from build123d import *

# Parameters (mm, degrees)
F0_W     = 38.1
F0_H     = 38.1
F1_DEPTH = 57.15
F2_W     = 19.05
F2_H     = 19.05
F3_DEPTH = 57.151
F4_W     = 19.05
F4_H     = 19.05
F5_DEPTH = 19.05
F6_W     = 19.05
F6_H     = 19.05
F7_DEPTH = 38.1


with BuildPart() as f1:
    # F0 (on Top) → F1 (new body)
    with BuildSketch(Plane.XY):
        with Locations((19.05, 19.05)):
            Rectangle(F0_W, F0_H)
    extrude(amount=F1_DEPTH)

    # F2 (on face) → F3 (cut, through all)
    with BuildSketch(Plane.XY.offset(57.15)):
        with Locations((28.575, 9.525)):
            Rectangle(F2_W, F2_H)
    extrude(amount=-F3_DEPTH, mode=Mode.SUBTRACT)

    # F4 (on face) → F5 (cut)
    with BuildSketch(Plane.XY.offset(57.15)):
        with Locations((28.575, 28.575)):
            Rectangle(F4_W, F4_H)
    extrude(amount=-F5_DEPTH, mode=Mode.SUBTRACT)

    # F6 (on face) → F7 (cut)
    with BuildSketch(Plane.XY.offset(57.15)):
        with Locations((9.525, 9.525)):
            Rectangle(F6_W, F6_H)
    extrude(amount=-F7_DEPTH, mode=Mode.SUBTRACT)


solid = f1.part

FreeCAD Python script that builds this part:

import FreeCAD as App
import Part
import Sketcher

V = App.Vector
Q = App.Units.Quantity


def add_polygon(sketch, points):
    """Adds a closed chain of lines whose ends are joined by coincident constraints."""
    first, n = sketch.GeometryCount, len(points)
    for a, b in zip(points, points[1:] + points[:1]):
        sketch.addGeometry(Part.LineSegment(App.Vector(*a, 0), App.Vector(*b, 0)), False)
    for i in range(n):
        sketch.addConstraint(Sketcher.Constraint("Coincident", first + i, 2, first + (i + 1) % n, 1))

doc = App.newDocument("Part")
body = doc.addObject("PartDesign::Body", "Body")

sketch1 = doc.addObject("Sketcher::SketchObject", "Sketch")
body.addObject(sketch1)
sketch1.AttachmentSupport = (doc.XY_Plane, [""])
sketch1.MapMode = "FlatFace"
add_polygon(sketch1, [(0, 38), (0, 0), (38, 0), (38, 38)])
sketch1.addConstraint(Sketcher.Constraint("Vertical", 0))
sketch1.addConstraint(Sketcher.Constraint("Horizontal", 1))
sketch1.addConstraint(Sketcher.Constraint("Vertical", 2))
sketch1.addConstraint(Sketcher.Constraint("Horizontal", 3))
sketch1.addConstraint(Sketcher.Constraint("Coincident", 0, 2, -1, 1))
sketch1.addConstraint(Sketcher.Constraint("Equal", 3, 0))
sketch1.addConstraint(Sketcher.Constraint("DistanceX", 1, 1, 1, 2, Q("1.5 in")))
pad1 = doc.addObject("PartDesign::Pad", "Pad")
body.addObject(pad1)
pad1.Profile = sketch1
pad1.Length = Q("2.25 in")

sketch2 = doc.addObject("Sketcher::SketchObject", "Sketch001")
body.addObject(sketch2)
sketch2.AttachmentSupport = (doc.XY_Plane, [""])
sketch2.MapMode = "FlatFace"
sketch2.AttachmentOffset = App.Placement(V(0, 0, 2.25 * 25.4), App.Rotation())
add_polygon(sketch2, [(19, 19), (19, 0), (38, 0), (38, 19)])
sketch2.addConstraint(Sketcher.Constraint("Vertical", 0))
sketch2.addConstraint(Sketcher.Constraint("Horizontal", 1))
sketch2.addConstraint(Sketcher.Constraint("Vertical", 2))
sketch2.addConstraint(Sketcher.Constraint("Horizontal", 3))
sketch2.addConstraint(Sketcher.Constraint("PointOnObject", 0, 2, -1))
sketch2.addConstraint(Sketcher.Constraint("Equal", 3, 0))
sketch2.addConstraint(Sketcher.Constraint("DistanceX", 1, 1, 1, 2, Q("0.75 in")))
sketch2.addConstraint(Sketcher.Constraint("DistanceX", -1, 1, 1, 2, Q("1.5 in")))
pocket1 = doc.addObject("PartDesign::Pocket", "Pocket")
body.addObject(pocket1)
pocket1.Profile = sketch2
pocket1.Type = "ThroughAll"

sketch3 = doc.addObject("Sketcher::SketchObject", "Sketch002")
body.addObject(sketch3)
sketch3.AttachmentSupport = (doc.XY_Plane, [""])
sketch3.MapMode = "FlatFace"
sketch3.AttachmentOffset = App.Placement(V(0, 0, 2.25 * 25.4), App.Rotation())
add_polygon(sketch3, [(19, 38), (19, 19), (38, 19), (38, 38)])
sketch3.addConstraint(Sketcher.Constraint("Vertical", 0))
sketch3.addConstraint(Sketcher.Constraint("Horizontal", 1))
sketch3.addConstraint(Sketcher.Constraint("Vertical", 2))
sketch3.addConstraint(Sketcher.Constraint("Horizontal", 3))
sketch3.addConstraint(Sketcher.Constraint("Equal", 3, 0))
sketch3.addConstraint(Sketcher.Constraint("DistanceX", 1, 1, 1, 2, Q("0.75 in")))
sketch3.addConstraint(Sketcher.Constraint("DistanceX", -1, 1, 1, 2, Q("1.5 in")))
sketch3.addConstraint(Sketcher.Constraint("DistanceY", -1, 1, 2, 2, Q("1.5 in")))
pocket2 = doc.addObject("PartDesign::Pocket", "Pocket001")
body.addObject(pocket2)
pocket2.Profile = sketch3
pocket2.Length = Q("0.75 in")

sketch4 = doc.addObject("Sketcher::SketchObject", "Sketch003")
body.addObject(sketch4)
sketch4.AttachmentSupport = (doc.XY_Plane, [""])
sketch4.MapMode = "FlatFace"
sketch4.AttachmentOffset = App.Placement(V(0, 0, 2.25 * 25.4), App.Rotation())
add_polygon(sketch4, [(0, 19), (0, 0), (19, 0), (19, 19)])
sketch4.addConstraint(Sketcher.Constraint("Vertical", 0))
sketch4.addConstraint(Sketcher.Constraint("Horizontal", 1))
sketch4.addConstraint(Sketcher.Constraint("Vertical", 2))
sketch4.addConstraint(Sketcher.Constraint("Horizontal", 3))
sketch4.addConstraint(Sketcher.Constraint("Coincident", 0, 2, -1, 1))
sketch4.addConstraint(Sketcher.Constraint("Equal", 3, 0))
sketch4.addConstraint(Sketcher.Constraint("DistanceX", 1, 1, 1, 2, Q("0.75 in")))
pocket3 = doc.addObject("PartDesign::Pocket", "Pocket002")
body.addObject(pocket3)
pocket3.Profile = sketch4
pocket3.Length = Q("1.5 in")

doc.recompute()
